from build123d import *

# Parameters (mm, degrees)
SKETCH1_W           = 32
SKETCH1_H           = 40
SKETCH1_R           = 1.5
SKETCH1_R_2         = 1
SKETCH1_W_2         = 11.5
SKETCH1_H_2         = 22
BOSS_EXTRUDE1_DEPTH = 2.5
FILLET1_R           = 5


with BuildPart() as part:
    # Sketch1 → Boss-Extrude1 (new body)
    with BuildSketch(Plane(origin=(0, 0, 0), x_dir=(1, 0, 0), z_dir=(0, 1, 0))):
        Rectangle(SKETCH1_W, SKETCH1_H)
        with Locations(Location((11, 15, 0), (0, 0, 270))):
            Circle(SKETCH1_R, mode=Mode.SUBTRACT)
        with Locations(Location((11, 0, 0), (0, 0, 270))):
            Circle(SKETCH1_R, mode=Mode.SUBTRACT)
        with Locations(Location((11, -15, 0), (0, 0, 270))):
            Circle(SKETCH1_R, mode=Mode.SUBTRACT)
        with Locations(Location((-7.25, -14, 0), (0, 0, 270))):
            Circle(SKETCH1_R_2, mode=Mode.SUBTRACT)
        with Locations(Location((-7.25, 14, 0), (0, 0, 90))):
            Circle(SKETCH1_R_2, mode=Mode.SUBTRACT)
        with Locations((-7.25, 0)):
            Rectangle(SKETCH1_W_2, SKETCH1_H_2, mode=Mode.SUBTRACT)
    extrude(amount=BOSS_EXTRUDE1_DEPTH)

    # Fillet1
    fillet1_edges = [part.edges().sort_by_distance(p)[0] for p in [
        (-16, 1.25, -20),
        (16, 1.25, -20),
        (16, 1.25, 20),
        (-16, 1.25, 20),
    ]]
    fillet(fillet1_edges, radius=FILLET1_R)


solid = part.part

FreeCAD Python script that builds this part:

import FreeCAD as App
import Part
import Sketcher

V = App.Vector
Q = App.Units.Quantity


def edges_at(feature, points):
    """Names of the edges that pass closest to the given points."""
    edges = feature.Shape.Edges
    near = lambda p: min(range(len(edges)), key=lambda i: edges[i].distToShape(Part.Vertex(*p))[0])
    return sorted({f"Edge{near(p) + 1}" for p in points})

doc = App.newDocument("Part")
body = doc.addObject("PartDesign::Body", "Body")

# Sketch on XZ plane
sketch1 = body.newObject("Sketcher::SketchObject", "Sketch")
sketch1.AttachmentSupport = (doc.getObject("XZ_Plane"), [""])
sketch1.MapMode = "FlatFace"
sketch1.addGeometry(Part.LineSegment(V(-16, -20, 0), V(-16, 20, 0)), False)
sketch1.addGeometry(Part.LineSegment(V(-16, 20, 0), V(16, 20, 0)), False)
sketch1.addGeometry(Part.LineSegment(V(16, 20, 0), V(16, -20, 0)), False)
sketch1.addGeometry(Part.LineSegment(V(16, -20, 0), V(-16, -20, 0)), False)
sketch1.addGeometry(Part.Circle(V(-7.25, 14, 0), V(0, 0, 1), 1), False)
sketch1.addGeometry(Part.Circle(V(11, 15, 0), V(0, 0, 1), 1.5), False)
sketch1.addGeometry(Part.LineSegment(V(-1.5, 11, 0), V(-13, 11, 0)), False)
sketch1.addGeometry(Part.LineSegment(V(-13, 11, 0), V(-13, -11, 0)), False)
sketch1.addGeometry(Part.LineSegment(V(-13, -11, 0), V(-1.5, -11, 0)), False)
sketch1.addGeometry(Part.LineSegment(V(-1.5, -11, 0), V(-1.5, 11, 0)), False)
sketch1.addGeometry(Part.Circle(V(-7.25, -14, 0), V(0, 0, 1), 1), False)
sketch1.addGeometry(Part.Circle(V(11, 0, 0), V(0, 0, 1), 1.5), False)
sketch1.addGeometry(Part.Circle(V(11, -15, 0), V(0, 0, 1), 1.5), False)
sketch1.addConstraint(Sketcher.Constraint("Coincident", 0, 2, 1, 1))
sketch1.addConstraint(Sketcher.Constraint("Coincident", 1, 2, 2, 1))
sketch1.addConstraint(Sketcher.Constraint("Coincident", 2, 2, 3, 1))
sketch1.addConstraint(Sketcher.Constraint("Coincident", 3, 2, 0, 1))
sketch1.addConstraint(Sketcher.Constraint("Coincident", 6, 2, 7, 1))
sketch1.addConstraint(Sketcher.Constraint("Coincident", 7, 2, 8, 1))
sketch1.addConstraint(Sketcher.Constraint("Coincident", 8, 2, 9, 1))
sketch1.addConstraint(Sketcher.Constraint("Coincident", 9, 2, 6, 1))
sketch1.addConstraint(Sketcher.Constraint("Vertical", 0))
sketch1.addConstraint(Sketcher.Constraint("Horizontal", 1))
sketch1.addConstraint(Sketcher.Constraint("Vertical", 2))
sketch1.addConstraint(Sketcher.Constraint("Horizontal", 3))
sketch1.addConstraint(Sketcher.Constraint("Horizontal", 6))
sketch1.addConstraint(Sketcher.Constraint("Vertical", 7))
sketch1.addConstraint(Sketcher.Constraint("Horizontal", 8))
sketch1.addConstraint(Sketcher.Constraint("Vertical", 9))
sketch1.addConstraint(Sketcher.Constraint("Equal", 4, 10))
sketch1.addConstraint(Sketcher.Constraint("Equal", 5, 11))
sketch1.addConstraint(Sketcher.Constraint("Equal", 11, 12))
sketch1.addConstraint(Sketcher.Constraint("Symmetric", 0, 2, 2, 2, -1, 1))
sketch1.addConstraint(Sketcher.Constraint("Symmetric", 4, 3, 10, 3, -1))
sketch1.addConstraint(Sketcher.Constraint("Symmetric", 5, 3, 12, 3, -1))
sketch1.addConstraint(Sketcher.Constraint("PointOnObject", 11, 3, -1))
sketch1.addConstraint(Sketcher.Constraint("Vertical", 5, 3, 11, 3))
sketch1.addConstraint(Sketcher.Constraint("Diameter", 4, Q("2 mm")))
sketch1.addConstraint(Sketcher.Constraint("Diameter", 5, Q("3 mm")))
sketch1.addConstraint(Sketcher.Constraint("DistanceX", 1, 1, 1, 2, Q("32 mm")))
sketch1.addConstraint(Sketcher.Constraint("DistanceY", 0, 1, 0, 2, Q("40 mm")))
sketch1.addConstraint(Sketcher.Constraint("DistanceY", 7, 2, 7, 1, Q("22 mm")))
sketch1.addConstraint(Sketcher.Constraint("DistanceX", 6, 2, 6, 1, Q("11.5 mm")))
sketch1.addConstraint(Sketcher.Constraint("DistanceY", -1, 1, 4, 3, Q("14 mm")))
sketch1.addConstraint(Sketcher.Constraint("DistanceX", -1, 1, 5, 3, Q("11 mm")))
sketch1.addConstraint(Sketcher.Constraint("DistanceY", -1, 1, 5, 3, Q("15 mm")))
sketch1.addConstraint(Sketcher.Constraint("DistanceX", 6, 2, -1, 1, Q("13 mm")))
sketch1.addConstraint(Sketcher.Constraint("DistanceY", -1, 1, 6, 2, Q("11 mm")))
sketch1.addConstraint(Sketcher.Constraint("DistanceX", 4, 3, -1, 1, Q("7.25 mm")))
pad1 = body.newObject("PartDesign::Pad", "Pad")
pad1.Profile = sketch1
pad1.Length = 2.5
pad1.Reversed = True
doc.recompute()

fillet = body.newObject("PartDesign::Fillet", "Fillet")
fillet.Base = (pad1, edges_at(pad1, [
    (-16, 1.25, -20),
    (16, 1.25, -20),
    (16, 1.25, 20),
    (-16, 1.25, 20),
]))
fillet.Radius = 5

doc.recompute()
